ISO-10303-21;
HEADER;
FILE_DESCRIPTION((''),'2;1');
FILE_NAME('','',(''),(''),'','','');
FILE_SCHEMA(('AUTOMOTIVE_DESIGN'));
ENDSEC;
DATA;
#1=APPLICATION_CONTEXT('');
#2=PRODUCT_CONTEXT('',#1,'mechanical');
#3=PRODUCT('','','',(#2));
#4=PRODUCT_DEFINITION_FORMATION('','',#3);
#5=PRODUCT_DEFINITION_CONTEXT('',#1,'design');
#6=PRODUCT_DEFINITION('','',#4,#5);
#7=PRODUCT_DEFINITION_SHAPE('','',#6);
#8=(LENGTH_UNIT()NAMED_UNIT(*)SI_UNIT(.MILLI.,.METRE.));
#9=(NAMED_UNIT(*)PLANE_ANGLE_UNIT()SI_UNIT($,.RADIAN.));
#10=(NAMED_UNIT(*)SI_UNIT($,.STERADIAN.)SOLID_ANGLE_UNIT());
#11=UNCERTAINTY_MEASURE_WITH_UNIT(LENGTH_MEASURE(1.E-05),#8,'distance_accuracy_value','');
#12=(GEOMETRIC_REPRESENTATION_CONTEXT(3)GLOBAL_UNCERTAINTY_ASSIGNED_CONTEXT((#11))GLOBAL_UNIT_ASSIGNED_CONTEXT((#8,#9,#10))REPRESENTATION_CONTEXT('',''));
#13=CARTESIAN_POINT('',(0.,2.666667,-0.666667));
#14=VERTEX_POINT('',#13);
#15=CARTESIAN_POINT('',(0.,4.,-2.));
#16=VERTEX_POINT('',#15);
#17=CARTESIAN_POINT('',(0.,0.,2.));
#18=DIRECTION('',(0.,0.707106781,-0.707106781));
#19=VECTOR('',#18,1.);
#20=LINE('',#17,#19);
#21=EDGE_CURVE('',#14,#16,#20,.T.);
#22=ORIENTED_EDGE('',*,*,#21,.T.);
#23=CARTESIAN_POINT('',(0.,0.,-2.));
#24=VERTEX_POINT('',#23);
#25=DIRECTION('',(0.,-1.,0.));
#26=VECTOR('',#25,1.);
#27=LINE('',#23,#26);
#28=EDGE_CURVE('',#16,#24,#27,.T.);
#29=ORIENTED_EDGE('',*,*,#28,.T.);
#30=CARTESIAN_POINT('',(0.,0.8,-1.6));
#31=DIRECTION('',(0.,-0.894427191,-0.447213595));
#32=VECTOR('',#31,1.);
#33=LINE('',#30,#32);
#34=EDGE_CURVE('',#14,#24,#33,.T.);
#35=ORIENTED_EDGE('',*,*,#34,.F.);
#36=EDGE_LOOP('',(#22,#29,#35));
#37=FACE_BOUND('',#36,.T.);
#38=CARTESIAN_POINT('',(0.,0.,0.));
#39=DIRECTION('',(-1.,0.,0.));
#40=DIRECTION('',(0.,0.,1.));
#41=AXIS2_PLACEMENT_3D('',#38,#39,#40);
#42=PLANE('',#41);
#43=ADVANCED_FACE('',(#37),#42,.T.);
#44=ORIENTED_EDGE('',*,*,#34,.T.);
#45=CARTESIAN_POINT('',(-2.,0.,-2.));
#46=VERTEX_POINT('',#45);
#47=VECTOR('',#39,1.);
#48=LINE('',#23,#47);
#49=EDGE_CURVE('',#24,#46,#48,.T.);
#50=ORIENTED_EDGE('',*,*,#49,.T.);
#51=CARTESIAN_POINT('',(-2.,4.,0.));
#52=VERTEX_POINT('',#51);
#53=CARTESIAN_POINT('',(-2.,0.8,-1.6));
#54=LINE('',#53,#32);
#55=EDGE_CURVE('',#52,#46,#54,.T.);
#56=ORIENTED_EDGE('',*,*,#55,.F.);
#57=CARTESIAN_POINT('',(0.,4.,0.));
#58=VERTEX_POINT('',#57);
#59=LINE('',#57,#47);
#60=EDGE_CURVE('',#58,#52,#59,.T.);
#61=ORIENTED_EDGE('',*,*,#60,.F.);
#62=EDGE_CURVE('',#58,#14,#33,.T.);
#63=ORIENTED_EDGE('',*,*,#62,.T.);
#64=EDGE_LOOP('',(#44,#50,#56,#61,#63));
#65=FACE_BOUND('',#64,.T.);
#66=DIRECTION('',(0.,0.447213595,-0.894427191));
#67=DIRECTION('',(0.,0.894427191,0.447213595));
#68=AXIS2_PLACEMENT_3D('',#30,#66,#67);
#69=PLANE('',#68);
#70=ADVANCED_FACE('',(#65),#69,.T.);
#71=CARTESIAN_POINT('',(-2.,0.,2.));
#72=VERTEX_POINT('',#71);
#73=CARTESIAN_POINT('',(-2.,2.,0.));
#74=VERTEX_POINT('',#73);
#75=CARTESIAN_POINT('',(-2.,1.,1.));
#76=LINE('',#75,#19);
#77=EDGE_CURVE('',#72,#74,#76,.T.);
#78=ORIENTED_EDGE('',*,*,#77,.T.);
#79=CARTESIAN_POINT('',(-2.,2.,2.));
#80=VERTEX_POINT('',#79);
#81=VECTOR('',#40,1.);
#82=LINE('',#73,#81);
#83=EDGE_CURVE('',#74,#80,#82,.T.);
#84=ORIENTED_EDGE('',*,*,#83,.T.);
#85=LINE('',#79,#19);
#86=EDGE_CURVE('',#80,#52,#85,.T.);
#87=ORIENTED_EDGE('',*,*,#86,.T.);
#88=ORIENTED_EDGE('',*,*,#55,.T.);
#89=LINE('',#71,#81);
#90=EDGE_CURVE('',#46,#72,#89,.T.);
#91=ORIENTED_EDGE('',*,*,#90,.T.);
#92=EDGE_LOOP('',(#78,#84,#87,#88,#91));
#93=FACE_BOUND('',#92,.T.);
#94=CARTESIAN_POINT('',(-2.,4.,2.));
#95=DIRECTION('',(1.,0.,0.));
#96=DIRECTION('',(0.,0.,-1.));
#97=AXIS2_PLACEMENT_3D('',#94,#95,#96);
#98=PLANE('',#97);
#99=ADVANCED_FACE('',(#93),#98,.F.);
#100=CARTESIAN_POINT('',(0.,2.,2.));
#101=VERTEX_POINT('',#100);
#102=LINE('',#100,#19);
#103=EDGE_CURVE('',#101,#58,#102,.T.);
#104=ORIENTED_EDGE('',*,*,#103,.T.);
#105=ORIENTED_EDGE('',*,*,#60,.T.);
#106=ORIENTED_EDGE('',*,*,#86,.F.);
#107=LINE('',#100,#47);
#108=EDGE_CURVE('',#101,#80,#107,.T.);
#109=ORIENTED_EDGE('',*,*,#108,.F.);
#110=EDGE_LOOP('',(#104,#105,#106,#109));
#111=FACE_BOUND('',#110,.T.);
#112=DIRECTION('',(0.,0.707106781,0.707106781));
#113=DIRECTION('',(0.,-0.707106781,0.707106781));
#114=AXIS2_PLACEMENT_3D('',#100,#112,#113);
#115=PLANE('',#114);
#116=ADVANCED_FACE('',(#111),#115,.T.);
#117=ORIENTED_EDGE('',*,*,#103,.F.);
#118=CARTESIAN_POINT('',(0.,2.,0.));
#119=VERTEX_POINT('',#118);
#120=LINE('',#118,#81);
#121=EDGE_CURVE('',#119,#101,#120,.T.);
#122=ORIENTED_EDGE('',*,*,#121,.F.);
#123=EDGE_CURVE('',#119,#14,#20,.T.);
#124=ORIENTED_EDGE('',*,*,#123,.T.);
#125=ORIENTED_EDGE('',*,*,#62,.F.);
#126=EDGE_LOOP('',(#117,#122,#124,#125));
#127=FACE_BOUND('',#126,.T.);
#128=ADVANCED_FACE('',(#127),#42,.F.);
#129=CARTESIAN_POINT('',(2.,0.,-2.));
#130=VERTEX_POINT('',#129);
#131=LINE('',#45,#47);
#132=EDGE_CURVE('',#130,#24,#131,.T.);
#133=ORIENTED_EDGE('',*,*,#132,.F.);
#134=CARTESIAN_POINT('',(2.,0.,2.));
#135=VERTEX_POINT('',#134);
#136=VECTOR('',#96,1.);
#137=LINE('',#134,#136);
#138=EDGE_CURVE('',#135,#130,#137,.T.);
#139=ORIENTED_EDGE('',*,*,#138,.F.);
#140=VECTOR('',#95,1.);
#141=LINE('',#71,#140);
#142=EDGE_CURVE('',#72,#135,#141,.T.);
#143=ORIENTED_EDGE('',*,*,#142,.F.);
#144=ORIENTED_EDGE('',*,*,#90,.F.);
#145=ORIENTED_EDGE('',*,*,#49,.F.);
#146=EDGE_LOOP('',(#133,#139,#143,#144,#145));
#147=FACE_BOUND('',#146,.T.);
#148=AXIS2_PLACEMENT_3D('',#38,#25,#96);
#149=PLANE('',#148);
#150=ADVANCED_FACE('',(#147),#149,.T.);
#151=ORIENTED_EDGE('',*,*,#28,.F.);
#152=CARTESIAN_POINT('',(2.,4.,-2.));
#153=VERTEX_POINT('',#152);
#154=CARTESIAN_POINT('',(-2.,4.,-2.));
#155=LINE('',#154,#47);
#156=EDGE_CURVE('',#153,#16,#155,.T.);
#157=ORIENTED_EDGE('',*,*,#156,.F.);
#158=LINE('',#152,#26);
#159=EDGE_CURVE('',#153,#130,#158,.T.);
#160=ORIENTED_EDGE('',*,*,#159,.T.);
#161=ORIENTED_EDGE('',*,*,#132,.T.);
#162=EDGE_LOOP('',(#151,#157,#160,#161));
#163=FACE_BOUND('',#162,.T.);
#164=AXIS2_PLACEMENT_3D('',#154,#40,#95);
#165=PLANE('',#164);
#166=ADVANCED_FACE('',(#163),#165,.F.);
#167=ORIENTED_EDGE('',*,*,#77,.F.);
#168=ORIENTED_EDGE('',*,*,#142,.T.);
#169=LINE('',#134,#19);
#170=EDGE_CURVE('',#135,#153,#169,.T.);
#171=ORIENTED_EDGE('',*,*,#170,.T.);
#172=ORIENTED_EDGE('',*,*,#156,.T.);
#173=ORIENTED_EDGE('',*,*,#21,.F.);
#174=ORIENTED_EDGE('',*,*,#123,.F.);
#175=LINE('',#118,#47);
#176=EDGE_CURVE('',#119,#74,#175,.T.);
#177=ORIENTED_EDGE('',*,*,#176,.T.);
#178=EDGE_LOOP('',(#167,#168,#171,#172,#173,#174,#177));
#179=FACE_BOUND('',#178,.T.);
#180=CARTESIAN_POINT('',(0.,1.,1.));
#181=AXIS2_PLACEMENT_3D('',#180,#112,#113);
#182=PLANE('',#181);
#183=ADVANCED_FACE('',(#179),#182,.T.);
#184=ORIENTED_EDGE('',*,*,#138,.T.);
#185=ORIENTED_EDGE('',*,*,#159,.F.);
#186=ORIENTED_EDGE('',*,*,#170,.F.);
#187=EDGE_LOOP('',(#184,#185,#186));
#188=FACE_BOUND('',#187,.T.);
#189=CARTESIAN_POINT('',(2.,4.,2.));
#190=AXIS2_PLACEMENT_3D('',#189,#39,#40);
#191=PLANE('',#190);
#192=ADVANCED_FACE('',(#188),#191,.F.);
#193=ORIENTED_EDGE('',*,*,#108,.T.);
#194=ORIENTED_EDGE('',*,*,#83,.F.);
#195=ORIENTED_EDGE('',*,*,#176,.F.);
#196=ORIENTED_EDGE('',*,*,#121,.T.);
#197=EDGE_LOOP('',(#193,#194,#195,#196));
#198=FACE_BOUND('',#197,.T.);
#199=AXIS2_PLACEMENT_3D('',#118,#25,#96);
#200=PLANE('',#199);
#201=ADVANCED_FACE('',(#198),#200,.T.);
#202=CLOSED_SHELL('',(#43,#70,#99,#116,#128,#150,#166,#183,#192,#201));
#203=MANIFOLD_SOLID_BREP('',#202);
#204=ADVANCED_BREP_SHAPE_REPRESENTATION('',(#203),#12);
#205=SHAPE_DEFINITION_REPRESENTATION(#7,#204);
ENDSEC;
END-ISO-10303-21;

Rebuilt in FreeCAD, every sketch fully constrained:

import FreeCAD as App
import Part
import Sketcher
Q = App.Units.Quantity

doc = App.newDocument("Part")
body = doc.addObject("PartDesign::Body", "Body")

sketch1 = doc.addObject("Sketcher::SketchObject", "Sketch")
body.addObject(sketch1)
sketch1.AttachmentSupport = (doc.XZ_Plane, [""])
sketch1.MapMode = "FlatFace"
sketch1.addGeometry([
    Part.LineSegment(App.Vector(-2, -2, 0), App.Vector(-2, 2, 0)),
    Part.LineSegment(App.Vector(-2, 2, 0), App.Vector(2, 2, 0)),
    Part.LineSegment(App.Vector(2, 2, 0), App.Vector(2, -2, 0)),
    Part.LineSegment(App.Vector(2, -2, 0), App.Vector(-2, -2, 0)),
], False)
sketch1.addConstraint([
    Sketcher.Constraint("Coincident", 0, 2, 1, 1),
    Sketcher.Constraint("Coincident", 1, 2, 2, 1),
    Sketcher.Constraint("Coincident", 2, 2, 3, 1),
    Sketcher.Constraint("Coincident", 3, 2, 0, 1),
    Sketcher.Constraint("Vertical", 0),
    Sketcher.Constraint("Horizontal", 1),
    Sketcher.Constraint("Vertical", 2),
    Sketcher.Constraint("Horizontal", 3),
    Sketcher.Constraint("Symmetric", 0, 2, 2, 2, -1, 1),
    Sketcher.Constraint("Equal", 3, 0),
    Sketcher.Constraint("DistanceX", 1, 1, 1, 2, 4.0),
])
pad1 = doc.addObject("PartDesign::Pad", "Pad")
body.addObject(pad1)
pad1.Profile = sketch1
pad1.Length = 4
pad1.Reversed = True

sketch2 = doc.addObject("Sketcher::SketchObject", "Sketch001")
body.addObject(sketch2)
sketch2.AttachmentSupport = (doc.YZ_Plane, [""])
sketch2.MapMode = "FlatFace"
sketch2.AttachmentOffset = App.Placement(App.Vector(0, 0, -2), App.Rotation())
sketch2.addGeometry([
    Part.LineSegment(App.Vector(2, 0, 0), App.Vector(0, 2, 0)),
    Part.LineSegment(App.Vector(0, 2, 0), App.Vector(2, 2, 0)),
    Part.LineSegment(App.Vector(2, 2, 0), App.Vector(2, 0, 0)),
    Part.LineSegment(App.Vector(4, 0, 0), App.Vector(2, 2, 0)),
    Part.LineSegment(App.Vector(2, 2, 0), App.Vector(4, 2, 0)),
    Part.LineSegment(App.Vector(4, 2, 0), App.Vector(4, 0, 0)),
    Part.LineSegment(App.Vector(0, -2, 0), App.Vector(4, 0, 0)),
    Part.LineSegment(App.Vector(4, 0, 0), App.Vector(4, -2, 0)),
    Part.LineSegment(App.Vector(4, -2, 0), App.Vector(0, -2, 0)),
], False)
sketch2.addConstraint([
    Sketcher.Constraint("Coincident", 0, 2, 1, 1),
    Sketcher.Constraint("Coincident", 1, 2, 2, 1),
    Sketcher.Constraint("Coincident", 2, 2, 0, 1),
    Sketcher.Constraint("Coincident", 3, 2, 4, 1),
    Sketcher.Constraint("Coincident", 4, 2, 5, 1),
    Sketcher.Constraint("Coincident", 5, 2, 3, 1),
    Sketcher.Constraint("Coincident", 6, 2, 7, 1),
    Sketcher.Constraint("Coincident", 7, 2, 8, 1),
    Sketcher.Constraint("Coincident", 8, 2, 6, 1),
    Sketcher.Constraint("Horizontal", 1),
    Sketcher.Constraint("Vertical", 2),
    Sketcher.Constraint("Horizontal", 4),
    Sketcher.Constraint("Vertical", 5),
    Sketcher.Constraint("Vertical", 7),
    Sketcher.Constraint("Horizontal", 8),
    Sketcher.Constraint("Coincident", 3, 2, 1, 2),
    Sketcher.Constraint("Coincident", 6, 2, 5, 2),
    Sketcher.Constraint("Symmetric", 0, 2, 8, 2, -1, 1),
    Sketcher.Constraint("PointOnObject", 0, 2, -2),
    Sketcher.Constraint("PointOnObject", 2, 2, -1),
    Sketcher.Constraint("PointOnObject", 5, 2, -1),
    Sketcher.Constraint("Parallel", 0, 3),
    Sketcher.Constraint("Equal", 4, 2),
    Sketcher.Constraint("DistanceX", 1, 1, 1, 2, 2.0),
])
pocket1 = doc.addObject("PartDesign::Pocket", "Pocket")
body.addObject(pocket1)
pocket1.Profile = sketch2
pocket1.Length = 2
pocket1.Reversed = True

sketch3 = doc.addObject("Sketcher::SketchObject", "Sketch002")
body.addObject(sketch3)
sketch3.AttachmentSupport = (doc.YZ_Plane, [""])
sketch3.MapMode = "FlatFace"
sketch3.AttachmentOffset = App.Placement(App.Vector(0, 0, 2), App.Rotation())
sketch3.addGeometry([
    Part.LineSegment(App.Vector(0, 2, 0), App.Vector(4, -2, 0)),
    Part.LineSegment(App.Vector(4, -2, 0), App.Vector(4.116557, 2, 0)),
    Part.LineSegment(App.Vector(4.116557, 2, 0), App.Vector(0, 2, 0)),
], False)
sketch3.addConstraint([
    Sketcher.Constraint("Coincident", 0, 2, 1, 1),
    Sketcher.Constraint("Coincident", 1, 2, 2, 1),
    Sketcher.Constraint("Coincident", 2, 2, 0, 1),
    Sketcher.Constraint("Horizontal", 2),
    Sketcher.Constraint("PointOnObject", 2, 2, -2),
    Sketcher.Constraint("Angle", 0, Q("-45 deg")),
    Sketcher.Constraint("DistanceX", -1, 1, 0, 2, 4.0),
    Sketcher.Constraint("DistanceY", 0, 2, -1, 1, 2.0),
    Sketcher.Constraint("DistanceX", 2, 2, 2, 1, 4.116557),
])
pocket2 = doc.addObject("PartDesign::Pocket", "Pocket001")
body.addObject(pocket2)
pocket2.Profile = sketch3
pocket2.Length = 2

doc.recompute()
